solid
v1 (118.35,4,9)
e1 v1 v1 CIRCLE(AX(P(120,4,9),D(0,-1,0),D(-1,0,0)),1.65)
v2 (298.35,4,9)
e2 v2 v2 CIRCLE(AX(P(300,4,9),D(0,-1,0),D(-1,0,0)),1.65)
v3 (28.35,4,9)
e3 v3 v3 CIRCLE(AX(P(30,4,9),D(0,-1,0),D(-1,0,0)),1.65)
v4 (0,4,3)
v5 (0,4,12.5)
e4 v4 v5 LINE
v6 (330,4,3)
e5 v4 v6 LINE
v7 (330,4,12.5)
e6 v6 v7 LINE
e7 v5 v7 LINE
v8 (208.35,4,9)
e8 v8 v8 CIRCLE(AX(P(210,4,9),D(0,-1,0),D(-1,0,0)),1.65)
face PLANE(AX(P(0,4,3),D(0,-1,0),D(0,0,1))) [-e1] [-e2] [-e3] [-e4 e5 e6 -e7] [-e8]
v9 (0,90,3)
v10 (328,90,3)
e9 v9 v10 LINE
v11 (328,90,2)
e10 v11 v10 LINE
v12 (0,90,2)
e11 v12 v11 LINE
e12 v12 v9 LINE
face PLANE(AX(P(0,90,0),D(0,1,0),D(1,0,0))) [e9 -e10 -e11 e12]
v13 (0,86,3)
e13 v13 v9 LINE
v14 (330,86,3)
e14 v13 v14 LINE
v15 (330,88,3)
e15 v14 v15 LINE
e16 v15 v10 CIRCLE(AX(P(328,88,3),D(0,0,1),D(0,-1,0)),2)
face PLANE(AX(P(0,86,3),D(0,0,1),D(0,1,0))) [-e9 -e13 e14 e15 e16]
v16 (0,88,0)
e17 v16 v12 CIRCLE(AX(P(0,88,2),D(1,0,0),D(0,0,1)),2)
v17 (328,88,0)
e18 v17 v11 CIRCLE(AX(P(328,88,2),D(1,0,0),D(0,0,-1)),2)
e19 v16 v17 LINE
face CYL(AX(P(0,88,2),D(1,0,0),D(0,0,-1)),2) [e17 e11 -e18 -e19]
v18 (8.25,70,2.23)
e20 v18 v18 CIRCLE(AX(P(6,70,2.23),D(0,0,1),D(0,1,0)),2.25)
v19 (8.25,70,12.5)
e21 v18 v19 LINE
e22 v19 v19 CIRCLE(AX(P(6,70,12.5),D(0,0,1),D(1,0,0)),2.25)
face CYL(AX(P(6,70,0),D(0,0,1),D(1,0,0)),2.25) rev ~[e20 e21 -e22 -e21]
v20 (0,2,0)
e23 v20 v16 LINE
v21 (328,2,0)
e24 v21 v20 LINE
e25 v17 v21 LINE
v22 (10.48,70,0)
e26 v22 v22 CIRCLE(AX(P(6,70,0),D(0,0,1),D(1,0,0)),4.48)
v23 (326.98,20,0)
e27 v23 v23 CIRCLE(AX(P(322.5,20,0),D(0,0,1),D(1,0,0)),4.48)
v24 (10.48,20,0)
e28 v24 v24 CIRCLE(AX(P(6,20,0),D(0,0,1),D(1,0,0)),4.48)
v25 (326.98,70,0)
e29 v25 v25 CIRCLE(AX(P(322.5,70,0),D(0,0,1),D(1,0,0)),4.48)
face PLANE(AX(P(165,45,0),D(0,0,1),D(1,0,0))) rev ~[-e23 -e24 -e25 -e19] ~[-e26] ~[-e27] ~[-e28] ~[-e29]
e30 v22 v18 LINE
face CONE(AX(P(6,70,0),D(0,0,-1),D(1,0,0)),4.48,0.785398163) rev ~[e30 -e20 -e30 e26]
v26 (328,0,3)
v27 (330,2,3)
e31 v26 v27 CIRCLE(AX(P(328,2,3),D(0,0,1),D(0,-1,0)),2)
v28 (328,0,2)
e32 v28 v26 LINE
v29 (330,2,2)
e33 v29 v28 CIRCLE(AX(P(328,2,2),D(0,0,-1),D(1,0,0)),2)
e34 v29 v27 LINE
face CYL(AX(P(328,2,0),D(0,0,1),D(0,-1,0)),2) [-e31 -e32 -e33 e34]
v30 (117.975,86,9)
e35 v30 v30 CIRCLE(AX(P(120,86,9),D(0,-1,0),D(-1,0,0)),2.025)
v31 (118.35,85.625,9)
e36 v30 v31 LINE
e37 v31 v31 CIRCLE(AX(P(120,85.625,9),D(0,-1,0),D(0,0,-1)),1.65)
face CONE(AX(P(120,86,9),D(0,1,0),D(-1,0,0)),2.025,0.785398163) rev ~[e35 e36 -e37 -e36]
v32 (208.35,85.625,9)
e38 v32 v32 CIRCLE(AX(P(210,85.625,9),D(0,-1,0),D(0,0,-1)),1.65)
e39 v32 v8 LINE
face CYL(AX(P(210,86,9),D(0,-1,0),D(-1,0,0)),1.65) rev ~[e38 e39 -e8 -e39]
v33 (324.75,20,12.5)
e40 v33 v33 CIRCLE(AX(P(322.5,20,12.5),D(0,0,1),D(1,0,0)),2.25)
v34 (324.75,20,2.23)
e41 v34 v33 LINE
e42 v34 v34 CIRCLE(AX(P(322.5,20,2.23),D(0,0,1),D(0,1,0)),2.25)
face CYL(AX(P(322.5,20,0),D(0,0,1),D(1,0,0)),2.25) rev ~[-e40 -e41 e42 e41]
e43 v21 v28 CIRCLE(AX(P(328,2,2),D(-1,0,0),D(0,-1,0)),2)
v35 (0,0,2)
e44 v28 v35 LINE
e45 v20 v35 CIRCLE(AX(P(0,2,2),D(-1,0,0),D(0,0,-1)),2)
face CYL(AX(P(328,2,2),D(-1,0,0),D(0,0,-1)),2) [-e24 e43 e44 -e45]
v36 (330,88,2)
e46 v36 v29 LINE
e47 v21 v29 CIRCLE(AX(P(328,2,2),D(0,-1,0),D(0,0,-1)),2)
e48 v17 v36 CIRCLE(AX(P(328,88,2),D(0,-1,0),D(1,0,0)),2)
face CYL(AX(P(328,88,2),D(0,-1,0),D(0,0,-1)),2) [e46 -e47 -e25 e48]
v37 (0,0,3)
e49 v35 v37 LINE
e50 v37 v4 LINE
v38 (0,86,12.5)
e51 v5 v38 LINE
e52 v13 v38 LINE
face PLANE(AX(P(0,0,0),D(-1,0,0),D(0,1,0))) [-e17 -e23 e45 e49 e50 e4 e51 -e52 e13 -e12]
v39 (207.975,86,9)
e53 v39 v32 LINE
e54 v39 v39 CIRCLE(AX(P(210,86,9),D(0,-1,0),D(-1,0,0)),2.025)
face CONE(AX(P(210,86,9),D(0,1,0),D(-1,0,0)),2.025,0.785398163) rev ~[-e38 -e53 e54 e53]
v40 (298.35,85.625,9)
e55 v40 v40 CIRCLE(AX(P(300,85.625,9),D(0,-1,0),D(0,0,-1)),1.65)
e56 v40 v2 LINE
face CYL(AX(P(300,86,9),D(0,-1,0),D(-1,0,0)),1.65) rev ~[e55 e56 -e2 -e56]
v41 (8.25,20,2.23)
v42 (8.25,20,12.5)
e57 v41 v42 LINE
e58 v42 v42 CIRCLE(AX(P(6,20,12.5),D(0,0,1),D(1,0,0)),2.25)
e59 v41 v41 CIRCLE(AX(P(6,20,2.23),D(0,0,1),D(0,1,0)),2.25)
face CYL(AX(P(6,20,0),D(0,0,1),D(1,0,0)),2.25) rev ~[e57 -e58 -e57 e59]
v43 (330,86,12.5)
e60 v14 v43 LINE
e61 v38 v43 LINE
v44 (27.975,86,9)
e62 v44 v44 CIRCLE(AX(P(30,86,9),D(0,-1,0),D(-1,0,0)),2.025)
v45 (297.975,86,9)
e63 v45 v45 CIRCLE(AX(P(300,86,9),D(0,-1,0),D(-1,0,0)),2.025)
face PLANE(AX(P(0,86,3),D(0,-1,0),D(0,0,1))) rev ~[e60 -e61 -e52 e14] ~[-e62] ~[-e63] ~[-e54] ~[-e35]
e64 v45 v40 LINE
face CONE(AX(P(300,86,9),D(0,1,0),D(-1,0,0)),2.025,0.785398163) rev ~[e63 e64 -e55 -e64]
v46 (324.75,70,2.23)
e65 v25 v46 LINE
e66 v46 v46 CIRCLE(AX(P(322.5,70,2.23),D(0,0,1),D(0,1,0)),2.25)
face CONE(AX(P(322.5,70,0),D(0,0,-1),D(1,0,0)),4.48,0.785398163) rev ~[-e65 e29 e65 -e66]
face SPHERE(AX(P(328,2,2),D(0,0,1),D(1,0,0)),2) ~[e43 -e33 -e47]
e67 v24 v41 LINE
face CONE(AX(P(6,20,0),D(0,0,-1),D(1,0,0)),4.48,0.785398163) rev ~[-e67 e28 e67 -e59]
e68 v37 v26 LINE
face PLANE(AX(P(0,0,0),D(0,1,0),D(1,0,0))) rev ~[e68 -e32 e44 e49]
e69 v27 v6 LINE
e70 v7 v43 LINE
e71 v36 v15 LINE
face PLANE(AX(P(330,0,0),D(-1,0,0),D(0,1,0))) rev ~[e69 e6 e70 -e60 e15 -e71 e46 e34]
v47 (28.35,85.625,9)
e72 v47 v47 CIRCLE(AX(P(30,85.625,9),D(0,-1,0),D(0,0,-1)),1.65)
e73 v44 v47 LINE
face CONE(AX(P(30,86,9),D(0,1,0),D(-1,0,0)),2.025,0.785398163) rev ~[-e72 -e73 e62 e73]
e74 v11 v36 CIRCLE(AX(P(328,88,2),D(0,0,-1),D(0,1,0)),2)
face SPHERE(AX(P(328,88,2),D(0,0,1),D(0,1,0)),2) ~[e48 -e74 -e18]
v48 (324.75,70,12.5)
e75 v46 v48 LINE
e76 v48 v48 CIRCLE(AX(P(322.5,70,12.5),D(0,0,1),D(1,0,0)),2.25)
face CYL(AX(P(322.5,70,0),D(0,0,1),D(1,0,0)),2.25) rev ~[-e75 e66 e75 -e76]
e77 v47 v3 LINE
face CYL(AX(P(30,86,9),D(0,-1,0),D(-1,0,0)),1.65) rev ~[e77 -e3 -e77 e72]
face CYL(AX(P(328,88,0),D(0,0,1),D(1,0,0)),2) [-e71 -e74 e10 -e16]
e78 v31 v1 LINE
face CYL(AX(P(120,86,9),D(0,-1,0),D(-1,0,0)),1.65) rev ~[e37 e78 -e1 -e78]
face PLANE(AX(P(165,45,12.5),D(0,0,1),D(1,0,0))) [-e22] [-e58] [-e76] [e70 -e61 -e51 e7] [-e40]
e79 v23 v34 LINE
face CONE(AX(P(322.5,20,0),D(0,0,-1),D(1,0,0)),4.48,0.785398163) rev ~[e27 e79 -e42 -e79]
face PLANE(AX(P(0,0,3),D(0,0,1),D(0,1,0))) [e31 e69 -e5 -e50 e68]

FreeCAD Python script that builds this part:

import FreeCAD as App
import Part
import Sketcher
from FreeCAD import Vector
Q = App.Units.Quantity


def edges_at(feature, points):
    """Names of the edges that pass closest to the given points."""
    edges = feature.Shape.Edges
    near = lambda p: min(range(len(edges)), key=lambda i: edges[i].distToShape(Part.Vertex(*p))[0])
    return sorted({f"Edge{near(p) + 1}" for p in points})

doc = App.newDocument("Part")
body = doc.addObject("PartDesign::Body", "Body")

# Sketch on XY plane
sketch1 = body.newObject("Sketcher::SketchObject", "Sketch")
sketch1.AttachmentSupport = (doc.getObject("XY_Plane"), [""])
sketch1.MapMode = "FlatFace"
sketch1.addGeometry(Part.LineSegment(Vector(0, 90, 0), Vector(0, 0, 0)), False)
sketch1.addGeometry(Part.LineSegment(Vector(0, 0, 0), Vector(330, 0, 0)), False)
sketch1.addGeometry(Part.LineSegment(Vector(330, 0, 0), Vector(330, 90, 0)), False)
sketch1.addGeometry(Part.LineSegment(Vector(330, 90, 0), Vector(0, 90, 0)), False)
sketch1.addConstraint(Sketcher.Constraint("Coincident", 0, 2, 1, 1))
sketch1.addConstraint(Sketcher.Constraint("Coincident", 1, 2, 2, 1))
sketch1.addConstraint(Sketcher.Constraint("Coincident", 2, 2, 3, 1))
sketch1.addConstraint(Sketcher.Constraint("Coincident", 3, 2, 0, 1))
sketch1.addConstraint(Sketcher.Constraint("Vertical", 0))
sketch1.addConstraint(Sketcher.Constraint("Horizontal", 1))
sketch1.addConstraint(Sketcher.Constraint("Vertical", 2))
sketch1.addConstraint(Sketcher.Constraint("Horizontal", 3))
sketch1.addConstraint(Sketcher.Constraint("Coincident", 0, 2, -1, 1))
sketch1.addConstraint(Sketcher.Constraint("DistanceX", 1, 1, 1, 2, Q("330 mm")))
sketch1.addConstraint(Sketcher.Constraint("DistanceY", 0, 2, 0, 1, Q("90 mm")))
pad1 = body.newObject("PartDesign::Pad", "Pad")
pad1.Profile = sketch1
pad1.Length = 12.5

# Sketch on YZ plane
sketch2 = body.newObject("Sketcher::SketchObject", "Sketch001")
sketch2.AttachmentSupport = (doc.getObject("YZ_Plane"), [""])
sketch2.MapMode = "FlatFace"
sketch2.addGeometry(Part.LineSegment(Vector(90, 3, 0), Vector(86, 3, 0)), False)
sketch2.addGeometry(Part.LineSegment(Vector(86, 3, 0), Vector(86, 12.5, 0)), False)
sketch2.addGeometry(Part.LineSegment(Vector(86, 12.5, 0), Vector(90, 12.5, 0)), False)
sketch2.addGeometry(Part.LineSegment(Vector(90, 12.5, 0), Vector(90, 3, 0)), False)
sketch2.addGeometry(Part.LineSegment(Vector(4, 3, 0), Vector(0, 3, 0)), False)
sketch2.addGeometry(Part.LineSegment(Vector(0, 3, 0), Vector(0, 12.5, 0)), False)
sketch2.addGeometry(Part.LineSegment(Vector(0, 12.5, 0), Vector(4, 12.5, 0)), False)
sketch2.addGeometry(Part.LineSegment(Vector(4, 12.5, 0), Vector(4, 3, 0)), False)
sketch2.addConstraint(Sketcher.Constraint("Coincident", 0, 2, 1, 1))
sketch2.addConstraint(Sketcher.Constraint("Coincident", 1, 2, 2, 1))
sketch2.addConstraint(Sketcher.Constraint("Coincident", 2, 2, 3, 1))
sketch2.addConstraint(Sketcher.Constraint("Coincident", 3, 2, 0, 1))
sketch2.addConstraint(Sketcher.Constraint("Coincident", 4, 2, 5, 1))
sketch2.addConstraint(Sketcher.Constraint("Coincident", 5, 2, 6, 1))
sketch2.addConstraint(Sketcher.Constraint("Coincident", 6, 2, 7, 1))
sketch2.addConstraint(Sketcher.Constraint("Coincident", 7, 2, 4, 1))
sketch2.addConstraint(Sketcher.Constraint("Horizontal", 0))
sketch2.addConstraint(Sketcher.Constraint("Vertical", 1))
sketch2.addConstraint(Sketcher.Constraint("Horizontal", 2))
sketch2.addConstraint(Sketcher.Constraint("Vertical", 3))
sketch2.addConstraint(Sketcher.Constraint("Horizontal", 4))
sketch2.addConstraint(Sketcher.Constraint("Vertical", 5))
sketch2.addConstraint(Sketcher.Constraint("Horizontal", 6))
sketch2.addConstraint(Sketcher.Constraint("Vertical", 7))
sketch2.addConstraint(Sketcher.Constraint("PointOnObject", 4, 2, -2))
sketch2.addConstraint(Sketcher.Constraint("Horizontal", 3, 2, 4, 2))
sketch2.addConstraint(Sketcher.Constraint("Horizontal", 2, 2, 5, 2))
sketch2.addConstraint(Sketcher.Constraint("Equal", 2, 4))
sketch2.addConstraint(Sketcher.Constraint("DistanceX", 0, 2, 0, 1, Q("4 mm")))
sketch2.addConstraint(Sketcher.Constraint("DistanceY", 1, 1, 1, 2, Q("9.5 mm")))
sketch2.addConstraint(Sketcher.Constraint("DistanceX", -1, 1, 0, 2, Q("86 mm")))
sketch2.addConstraint(Sketcher.Constraint("DistanceY", -1, 1, 0, 2, Q("3 mm")))
pocket1 = body.newObject("PartDesign::Pocket", "Pocket")
pocket1.Profile = sketch2
pocket1.Type = "ThroughAll"
pocket1.Reversed = True

# Sketch on XY plane
sketch3 = body.newObject("Sketcher::SketchObject", "Sketch002")
sketch3.AttachmentSupport = (doc.getObject("XY_Plane"), [""])
sketch3.MapMode = "FlatFace"
sketch3.addGeometry(Part.Circle(Vector(322.5, 70, 0), Vector(0, 0, 1), 2.25), False)
sketch3.addGeometry(Part.Circle(Vector(322.5, 20, 0), Vector(0, 0, 1), 2.25), False)
sketch3.addGeometry(Part.Circle(Vector(6, 70, 0), Vector(0, 0, 1), 2.25), False)
sketch3.addGeometry(Part.Circle(Vector(6, 20, 0), Vector(0, 0, 1), 2.25), False)
sketch3.addConstraint(Sketcher.Constraint("Equal", 0, 1))
sketch3.addConstraint(Sketcher.Constraint("Equal", 1, 2))
sketch3.addConstraint(Sketcher.Constraint("Equal", 2, 3))
sketch3.addConstraint(Sketcher.Constraint("Horizontal", 0, 3, 2, 3))
sketch3.addConstraint(Sketcher.Constraint("Horizontal", 1, 3, 3, 3))
sketch3.addConstraint(Sketcher.Constraint("Vertical", 0, 3, 1, 3))
sketch3.addConstraint(Sketcher.Constraint("Vertical", 2, 3, 3, 3))
sketch3.addConstraint(Sketcher.Constraint("Diameter", 0, Q("4.5 mm")))
sketch3.addConstraint(Sketcher.Constraint("DistanceY", -1, 1, 0, 3, Q("70 mm")))
sketch3.addConstraint(Sketcher.Constraint("DistanceY", -1, 1, 1, 3, Q("20 mm")))
sketch3.addConstraint(Sketcher.Constraint("DistanceX", -1, 1, 2, 3, Q("6 mm")))
sketch3.addConstraint(Sketcher.Constraint("DistanceX", -1, 1, 0, 3, Q("322.5 mm")))
doc.recompute()
hole = body.newObject("PartDesign::Hole", "Hole")
hole.Profile = sketch3
hole.ThreadType = "None"
hole.Diameter = 4.5
hole.DepthType = "ThroughAll"
hole.HoleCutType = "Countersink"
hole.HoleCutDiameter = 8.96
hole.HoleCutCountersinkAngle = 90
hole.Reversed = True

# Sketch on XZ plane
sketch4 = body.newObject("Sketcher::SketchObject", "Sketch003")
sketch4.AttachmentSupport = (doc.getObject("XZ_Plane"), [""])
sketch4.MapMode = "FlatFace"
sketch4.AttachmentOffset = App.Placement(Vector(0, 0, -86), App.Rotation())
sketch4.addGeometry(Part.Circle(Vector(30, 9, 0), Vector(0, 0, 1), 1.65), False)
sketch4.addGeometry(Part.Circle(Vector(120, 9, 0), Vector(0, 0, 1), 1.65), False)
sketch4.addGeometry(Part.Circle(Vector(210, 9, 0), Vector(0, 0, 1), 1.65), False)
sketch4.addGeometry(Part.Circle(Vector(300, 9, 0), Vector(0, 0, 1), 1.65), False)
sketch4.addConstraint(Sketcher.Constraint("Equal", 0, 1))
sketch4.addConstraint(Sketcher.Constraint("Equal", 1, 2))
sketch4.addConstraint(Sketcher.Constraint("Equal", 2, 3))
sketch4.addConstraint(Sketcher.Constraint("Horizontal", 0, 3, 1, 3))
sketch4.addConstraint(Sketcher.Constraint("Horizontal", 1, 3, 2, 3))
sketch4.addConstraint(Sketcher.Constraint("Horizontal", 2, 3, 3, 3))
sketch4.addConstraint(Sketcher.Constraint("Diameter", 0, Q("3.3 mm")))
sketch4.addConstraint(Sketcher.Constraint("DistanceX", -1, 1, 0, 3, Q("30 mm")))
sketch4.addConstraint(Sketcher.Constraint("DistanceY", -1, 1, 0, 3, Q("9 mm")))
sketch4.addConstraint(Sketcher.Constraint("DistanceX", -1, 1, 1, 3, Q("120 mm")))
sketch4.addConstraint(Sketcher.Constraint("DistanceX", -1, 1, 2, 3, Q("210 mm")))
sketch4.addConstraint(Sketcher.Constraint("DistanceX", -1, 1, 3, 3, Q("300 mm")))
doc.recompute()
hole2 = body.newObject("PartDesign::Hole", "Hole001")
hole2.Profile = sketch4
hole2.ThreadType = "None"
hole2.Diameter = 3.3
hole2.DepthType = "ThroughAll"
hole2.HoleCutType = "Countersink"
hole2.HoleCutDiameter = 4.05
hole2.HoleCutCountersinkAngle = 90
hole2.Reversed = True
doc.recompute()

fillet = body.newObject("PartDesign::Fillet", "Fillet")
fillet.Base = (hole2, edges_at(hole2, [(330, 90, 1.5), (330, 0, 1.5)]))
fillet.Radius = 2
doc.recompute()

fillet2 = body.newObject("PartDesign::Fillet", "Fillet001")
fillet2.Base = (fillet, edges_at(fillet, [(164, 90, 0), (164, 0, 0), (330, 45, 0)]))
fillet2.Radius = 2

doc.recompute()
